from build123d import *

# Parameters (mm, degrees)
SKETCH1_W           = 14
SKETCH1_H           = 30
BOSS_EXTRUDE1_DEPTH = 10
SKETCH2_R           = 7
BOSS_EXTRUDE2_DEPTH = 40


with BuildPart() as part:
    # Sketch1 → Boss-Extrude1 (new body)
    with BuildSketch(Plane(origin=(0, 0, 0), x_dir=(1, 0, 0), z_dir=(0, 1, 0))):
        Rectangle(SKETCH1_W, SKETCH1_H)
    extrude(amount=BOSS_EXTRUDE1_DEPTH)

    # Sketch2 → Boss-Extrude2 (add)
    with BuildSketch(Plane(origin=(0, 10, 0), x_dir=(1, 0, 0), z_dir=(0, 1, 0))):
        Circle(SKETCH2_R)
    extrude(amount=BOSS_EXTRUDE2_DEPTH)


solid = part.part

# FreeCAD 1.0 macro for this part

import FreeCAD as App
import Part
import Sketcher

V = App.Vector


def add_polygon(sketch, points):
    """Adds a closed chain of lines whose ends are joined by coincident constraints."""
    first, n = sketch.GeometryCount, len(points)
    for a, b in zip(points, points[1:] + points[:1]):
        sketch.addGeometry(Part.LineSegment(App.Vector(*a, 0), App.Vector(*b, 0)), False)
    for i in range(n):
        sketch.addConstraint(Sketcher.Constraint("Coincident", first + i, 2, first + (i + 1) % n, 1))

doc = App.newDocument("Part")
body = doc.addObject("PartDesign::Body", "Body")

# Sketch on XZ plane
sketch1 = body.newObject("Sketcher::SketchObject", "Sketch")
sketch1.AttachmentSupport = (doc.getObject("XZ_Plane"), [""])
sketch1.MapMode = "FlatFace"
add_polygon(sketch1, [(-7, -15), (-7, 15), (7, 15), (7, -15)])  # lines 0-3
sketch1.addConstraint(Sketcher.Constraint("Vertical", 0))
sketch1.addConstraint(Sketcher.Constraint("Horizontal", 1))
sketch1.addConstraint(Sketcher.Constraint("Vertical", 2))
sketch1.addConstraint(Sketcher.Constraint("Horizontal", 3))
sketch1.addConstraint(Sketcher.Constraint("Symmetric", 0, 2, 2, 2, -1, 1))
sketch1.addConstraint(Sketcher.Constraint("DistanceX", 1, 1, 1, 2, 14.0))
sketch1.addConstraint(Sketcher.Constraint("DistanceY", 0, 1, 0, 2, 30.0))
pad1 = body.newObject("PartDesign::Pad", "Pad")
pad1.Profile = sketch1
pad1.Length = 10
pad1.Reversed = True

# Sketch on XZ plane
sketch2 = body.newObject("Sketcher::SketchObject", "Sketch001")
sketch2.AttachmentSupport = (doc.getObject("XZ_Plane"), [""])
sketch2.MapMode = "FlatFace"
sketch2.AttachmentOffset = App.Placement(V(0, 0, -10), App.Rotation())
sketch2.addGeometry(Part.Circle(V(0, 0, 0), V(0, 0, 1), 7), False)
sketch2.addConstraint(Sketcher.Constraint("Coincident", 0, 3, -1, 1))
sketch2.addConstraint(Sketcher.Constraint("Diameter", 0, 14.0))
pad2 = body.newObject("PartDesign::Pad", "Pad001")
pad2.Profile = sketch2
pad2.Length = 40
pad2.Reversed = True

doc.recompute()
